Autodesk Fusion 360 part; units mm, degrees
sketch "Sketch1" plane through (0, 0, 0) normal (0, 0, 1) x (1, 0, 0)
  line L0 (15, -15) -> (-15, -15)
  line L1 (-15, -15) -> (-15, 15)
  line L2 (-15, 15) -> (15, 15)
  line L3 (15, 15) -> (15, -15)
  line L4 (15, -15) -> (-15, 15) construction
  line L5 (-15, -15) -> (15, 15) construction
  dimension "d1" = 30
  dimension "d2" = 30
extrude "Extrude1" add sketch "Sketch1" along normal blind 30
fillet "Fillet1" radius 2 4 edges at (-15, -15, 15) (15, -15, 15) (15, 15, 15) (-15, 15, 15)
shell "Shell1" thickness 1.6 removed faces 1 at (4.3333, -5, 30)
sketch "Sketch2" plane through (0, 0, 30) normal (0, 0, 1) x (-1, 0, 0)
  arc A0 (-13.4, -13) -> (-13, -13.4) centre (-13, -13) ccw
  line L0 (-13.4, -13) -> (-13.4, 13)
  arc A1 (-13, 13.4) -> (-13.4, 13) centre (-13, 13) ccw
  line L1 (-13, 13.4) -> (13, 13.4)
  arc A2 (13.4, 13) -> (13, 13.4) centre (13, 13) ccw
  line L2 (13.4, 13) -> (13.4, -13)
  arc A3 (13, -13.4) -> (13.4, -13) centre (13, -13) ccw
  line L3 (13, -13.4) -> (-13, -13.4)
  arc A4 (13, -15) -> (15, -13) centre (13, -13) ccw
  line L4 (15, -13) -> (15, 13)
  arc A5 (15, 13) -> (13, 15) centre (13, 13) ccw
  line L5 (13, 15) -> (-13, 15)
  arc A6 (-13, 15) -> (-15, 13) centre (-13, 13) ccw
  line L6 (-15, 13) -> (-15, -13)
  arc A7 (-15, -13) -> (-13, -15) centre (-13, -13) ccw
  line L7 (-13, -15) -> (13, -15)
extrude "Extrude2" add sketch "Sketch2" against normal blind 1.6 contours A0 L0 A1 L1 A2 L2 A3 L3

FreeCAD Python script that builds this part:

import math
import FreeCAD as App
import Part
import Sketcher


def edges_at(feature, points):
    """Names of the edges that pass closest to the given points."""
    edges = feature.Shape.Edges
    near = lambda p: min(range(len(edges)), key=lambda i: edges[i].distToShape(Part.Vertex(*p))[0])
    return sorted({f"Edge{near(p) + 1}" for p in points})


def faces_at(feature, points):
    """Names of the faces that lie closest to the given points."""
    faces = feature.Shape.Faces
    near = lambda p: min(range(len(faces)), key=lambda i: faces[i].distToShape(Part.Vertex(*p))[0])
    return sorted({f"Face{near(p) + 1}" for p in points})


def add_polygon(sketch, points):
    """Adds a closed chain of lines whose ends are joined by coincident constraints."""
    first, n = sketch.GeometryCount, len(points)
    for a, b in zip(points, points[1:] + points[:1]):
        sketch.addGeometry(Part.LineSegment(App.Vector(*a, 0), App.Vector(*b, 0)), False)
    for i in range(n):
        sketch.addConstraint(Sketcher.Constraint("Coincident", first + i, 2, first + (i + 1) % n, 1))

doc = App.newDocument("Part")
body = doc.addObject("PartDesign::Body", "Body")

sketch1 = doc.addObject("Sketcher::SketchObject", "Sketch")
body.addObject(sketch1)
sketch1.AttachmentSupport = (doc.XY_Plane, [""])
sketch1.MapMode = "FlatFace"
add_polygon(sketch1, [(-15, -15), (15, -15), (15, 15), (-15, 15)])
sketch1.addConstraint([
    Sketcher.Constraint("Horizontal", 0),
    Sketcher.Constraint("Vertical", 1),
    Sketcher.Constraint("Horizontal", 2),
    Sketcher.Constraint("Vertical", 3),
    Sketcher.Constraint("Symmetric", 0, 2, 2, 2, -1, 1),
    Sketcher.Constraint("Equal", 2, 1),
    Sketcher.Constraint("DistanceX", 0, 1, 0, 2, 30.0),
])
pad1 = doc.addObject("PartDesign::Pad", "Pad")
body.addObject(pad1)
pad1.Profile = sketch1
pad1.Length = 30
doc.recompute()

fillet = doc.addObject("PartDesign::Fillet", "Fillet")
body.addObject(fillet)
fillet.Base = (pad1, edges_at(pad1, [
    (-15, -15, 15),
    (15, -15, 15),
    (15, 15, 15),
    (-15, 15, 15),
]))
fillet.Radius = 2
doc.recompute()

thickness = doc.addObject("PartDesign::Thickness", "Thickness")
body.addObject(thickness)
thickness.Base = (fillet, faces_at(fillet, [(4.333, -5, 30)]))
thickness.Value = 1.6
thickness.Reversed = True
thickness.Join = "Intersection"

sketch2 = doc.addObject("Sketcher::SketchObject", "Sketch001")
body.addObject(sketch2)
sketch2.AttachmentSupport = (doc.XY_Plane, [""])
sketch2.MapMode = "FlatFace"
sketch2.AttachmentOffset = App.Placement(App.Vector(0, 0, 30), App.Rotation())
sketch2.addGeometry([
    Part.LineSegment(App.Vector(13.4, -13, 0), App.Vector(13.4, 13, 0)),
    Part.ArcOfCircle(Part.Circle(App.Vector(13, 13, 0), App.Vector(0, 0, 1), 0.4), math.radians(0), math.radians(90)),
    Part.LineSegment(App.Vector(13, 13.4, 0), App.Vector(-13, 13.4, 0)),
    Part.ArcOfCircle(Part.Circle(App.Vector(-13, 13, 0), App.Vector(0, 0, 1), 0.4), math.radians(90), math.radians(180)),
    Part.LineSegment(App.Vector(-13.4, 13, 0), App.Vector(-13.4, -13, 0)),
    Part.ArcOfCircle(Part.Circle(App.Vector(-13, -13, 0), App.Vector(0, 0, 1), 0.4), math.radians(180), math.radians(270)),
    Part.LineSegment(App.Vector(-13, -13.4, 0), App.Vector(13, -13.4, 0)),
    Part.ArcOfCircle(Part.Circle(App.Vector(13, -13, 0), App.Vector(0, 0, 1), 0.4), math.radians(-90), math.radians(0)),
], False)
sketch2.addConstraint([
    Sketcher.Constraint("Tangent", 0, 2, 1, 1),
    Sketcher.Constraint("Tangent", 1, 2, 2, 1),
    Sketcher.Constraint("Tangent", 2, 2, 3, 1),
    Sketcher.Constraint("Tangent", 3, 2, 4, 1),
    Sketcher.Constraint("Tangent", 4, 2, 5, 1),
    Sketcher.Constraint("Tangent", 5, 2, 6, 1),
    Sketcher.Constraint("Tangent", 6, 2, 7, 1),
    Sketcher.Constraint("Tangent", 7, 2, 0, 1),
    Sketcher.Constraint("Vertical", 0),
    Sketcher.Constraint("Horizontal", 2),
    Sketcher.Constraint("Vertical", 4),
    Sketcher.Constraint("Horizontal", 6),
    Sketcher.Constraint("Equal", 1, 3),
    Sketcher.Constraint("Equal", 3, 5),
    Sketcher.Constraint("Equal", 5, 7),
    Sketcher.Constraint("Symmetric", 1, 3, 5, 3, -1, 1),
    Sketcher.Constraint("Equal", 6, 0),
    Sketcher.Constraint("Radius", 1, 0.4),
    Sketcher.Constraint("DistanceX", 2, 2, 2, 1, 26.0),
])
pad2 = doc.addObject("PartDesign::Pad", "Pad001")
body.addObject(pad2)
pad2.Profile = sketch2
pad2.Length = 1.6
pad2.Reversed = True

doc.recompute()
